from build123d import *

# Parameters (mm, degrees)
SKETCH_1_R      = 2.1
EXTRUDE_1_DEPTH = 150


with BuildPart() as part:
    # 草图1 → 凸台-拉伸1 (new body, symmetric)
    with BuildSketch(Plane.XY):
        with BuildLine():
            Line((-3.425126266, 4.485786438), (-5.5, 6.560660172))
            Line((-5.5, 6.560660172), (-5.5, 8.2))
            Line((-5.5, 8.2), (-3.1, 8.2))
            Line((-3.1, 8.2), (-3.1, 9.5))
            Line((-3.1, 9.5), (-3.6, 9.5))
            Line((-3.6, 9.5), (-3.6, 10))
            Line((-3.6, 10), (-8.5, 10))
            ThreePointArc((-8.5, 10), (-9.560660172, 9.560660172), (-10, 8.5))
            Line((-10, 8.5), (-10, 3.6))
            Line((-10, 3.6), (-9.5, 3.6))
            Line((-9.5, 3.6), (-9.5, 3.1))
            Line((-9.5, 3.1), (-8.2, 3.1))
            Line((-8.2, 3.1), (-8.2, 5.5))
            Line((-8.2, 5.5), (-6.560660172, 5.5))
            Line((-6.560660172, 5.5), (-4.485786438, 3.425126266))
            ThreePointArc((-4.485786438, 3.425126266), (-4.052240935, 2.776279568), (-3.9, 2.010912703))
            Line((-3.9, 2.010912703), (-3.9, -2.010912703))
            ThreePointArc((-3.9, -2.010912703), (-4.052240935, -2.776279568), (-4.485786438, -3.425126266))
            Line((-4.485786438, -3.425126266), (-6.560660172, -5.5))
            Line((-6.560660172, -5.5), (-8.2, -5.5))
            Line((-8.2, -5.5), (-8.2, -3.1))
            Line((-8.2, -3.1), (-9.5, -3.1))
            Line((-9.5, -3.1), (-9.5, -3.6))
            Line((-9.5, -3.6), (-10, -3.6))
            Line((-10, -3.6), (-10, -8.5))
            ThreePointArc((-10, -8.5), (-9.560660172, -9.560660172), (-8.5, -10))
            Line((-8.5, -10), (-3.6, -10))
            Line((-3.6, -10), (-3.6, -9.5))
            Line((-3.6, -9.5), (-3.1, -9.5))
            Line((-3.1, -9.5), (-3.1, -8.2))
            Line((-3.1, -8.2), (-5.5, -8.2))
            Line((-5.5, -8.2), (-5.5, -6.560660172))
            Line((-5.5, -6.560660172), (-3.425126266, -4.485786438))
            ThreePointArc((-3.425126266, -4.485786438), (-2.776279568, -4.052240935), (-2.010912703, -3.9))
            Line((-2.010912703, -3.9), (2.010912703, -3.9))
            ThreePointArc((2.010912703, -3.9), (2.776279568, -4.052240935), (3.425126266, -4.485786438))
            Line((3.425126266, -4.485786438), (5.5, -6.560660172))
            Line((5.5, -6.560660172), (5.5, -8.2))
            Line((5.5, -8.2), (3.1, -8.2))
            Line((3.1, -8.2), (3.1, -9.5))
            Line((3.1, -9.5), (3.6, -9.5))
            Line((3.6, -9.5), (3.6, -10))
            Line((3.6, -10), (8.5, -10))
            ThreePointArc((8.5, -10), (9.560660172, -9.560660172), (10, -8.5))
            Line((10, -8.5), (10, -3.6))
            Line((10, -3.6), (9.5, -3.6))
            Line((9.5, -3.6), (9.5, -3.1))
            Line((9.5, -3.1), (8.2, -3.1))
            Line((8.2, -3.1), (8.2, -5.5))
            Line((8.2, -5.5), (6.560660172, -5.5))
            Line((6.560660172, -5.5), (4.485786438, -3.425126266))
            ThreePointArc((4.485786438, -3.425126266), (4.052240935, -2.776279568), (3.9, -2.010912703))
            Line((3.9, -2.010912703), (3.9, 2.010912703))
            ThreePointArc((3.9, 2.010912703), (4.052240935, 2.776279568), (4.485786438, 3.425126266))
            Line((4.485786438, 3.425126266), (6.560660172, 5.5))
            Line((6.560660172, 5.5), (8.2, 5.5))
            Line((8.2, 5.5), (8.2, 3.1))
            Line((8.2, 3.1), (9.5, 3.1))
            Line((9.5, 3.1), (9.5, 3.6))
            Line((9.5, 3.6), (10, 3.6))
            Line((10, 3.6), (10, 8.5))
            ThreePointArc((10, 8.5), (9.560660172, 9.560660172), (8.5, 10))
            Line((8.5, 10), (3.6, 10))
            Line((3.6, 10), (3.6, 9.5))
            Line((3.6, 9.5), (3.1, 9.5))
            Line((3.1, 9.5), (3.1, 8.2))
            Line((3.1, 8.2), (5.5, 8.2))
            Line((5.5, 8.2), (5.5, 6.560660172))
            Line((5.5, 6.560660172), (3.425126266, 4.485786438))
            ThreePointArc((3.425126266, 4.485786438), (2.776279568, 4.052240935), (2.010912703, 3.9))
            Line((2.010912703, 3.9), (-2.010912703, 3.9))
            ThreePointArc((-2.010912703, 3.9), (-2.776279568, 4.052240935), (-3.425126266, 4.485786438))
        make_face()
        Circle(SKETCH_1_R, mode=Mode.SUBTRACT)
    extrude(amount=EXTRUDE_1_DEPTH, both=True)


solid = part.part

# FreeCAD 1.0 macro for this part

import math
import FreeCAD as App
import Part
import Sketcher

V = App.Vector

doc = App.newDocument("Part")
params = doc.addObject("Spreadsheet::Sheet", "Params")
for row, (alias, value) in enumerate([
    ("sketch1_radius", "2 mm"),
    ("sketch1_diameter", "4.2 mm"),
    ("sketch1_radius2", "1.5 mm"),
    ("sketch1_width", "2.4 mm"),
    ("sketch1_width2", "0.5 mm"),
    ("pad1_length", "300 mm"),
], start=1):
    params.set(f"A{row}", alias)
    params.set(f"B{row}", "=" + value)
    params.setAlias(f"B{row}", alias)

body = doc.addObject("PartDesign::Body", "Body")

# Sketch on XY plane
sketch1 = doc.addObject("Sketcher::SketchObject", "Sketch")
body.addObject(sketch1)
sketch1.AttachmentSupport = (doc.XY_Plane, [""])
sketch1.MapMode = "FlatFace"
sketch1.addGeometry([
    Part.LineSegment(V(-3.4, 4.5, 0), V(-5.5, 6.6, 0)),  # 0
    Part.LineSegment(V(-5.5, 6.6, 0), V(-5.5, 8.2, 0)),  # 1
    Part.LineSegment(V(-5.5, 8.2, 0), V(-3.1, 8.2, 0)),  # 2
    Part.LineSegment(V(-3.1, 8.2, 0), V(-3.1, 9.5, 0)),  # 3
    Part.LineSegment(V(-3.1, 9.5, 0), V(-3.6, 9.5, 0)),  # 4
    Part.LineSegment(V(-3.6, 9.5, 0), V(-3.6, 10, 0)),  # 5
    Part.LineSegment(V(-3.6, 10, 0), V(-8.5, 10, 0)),  # 6
    Part.ArcOfCircle(Part.Circle(V(-8.5, 8.5, 0), V(0, 0, 1), 1.5), math.radians(90), math.radians(180)),  # 7
    Part.LineSegment(V(-10, 8.5, 0), V(-10, 3.6, 0)),  # 8
    Part.LineSegment(V(-10, 3.6, 0), V(-9.5, 3.6, 0)),  # 9
    Part.LineSegment(V(-9.5, 3.6, 0), V(-9.5, 3.1, 0)),  # 10
    Part.LineSegment(V(-9.5, 3.1, 0), V(-8.2, 3.1, 0)),  # 11
    Part.LineSegment(V(-8.2, 3.1, 0), V(-8.2, 5.5, 0)),  # 12
    Part.LineSegment(V(-8.2, 5.5, 0), V(-6.6, 5.5, 0)),  # 13
    Part.LineSegment(V(-6.6, 5.5, 0), V(-4.5, 3.4, 0)),  # 14
    Part.ArcOfCircle(Part.Circle(V(-5.9, 2, 0), V(0, 0, 1), 2), math.radians(0), math.radians(45)),  # 15
    Part.LineSegment(V(-3.9, 2, 0), V(-3.9, -2, 0)),  # 16
    Part.ArcOfCircle(Part.Circle(V(-5.9, -2, 0), V(0, 0, 1), 2), math.radians(-45), math.radians(0)),  # 17
    Part.LineSegment(V(-4.5, -3.4, 0), V(-6.6, -5.5, 0)),  # 18
    Part.LineSegment(V(-6.6, -5.5, 0), V(-8.2, -5.5, 0)),  # 19
    Part.LineSegment(V(-8.2, -5.5, 0), V(-8.2, -3.1, 0)),  # 20
    Part.LineSegment(V(-8.2, -3.1, 0), V(-9.5, -3.1, 0)),  # 21
    Part.LineSegment(V(-9.5, -3.1, 0), V(-9.5, -3.6, 0)),  # 22
    Part.LineSegment(V(-9.5, -3.6, 0), V(-10, -3.6, 0)),  # 23
    Part.LineSegment(V(-10, -3.6, 0), V(-10, -8.5, 0)),  # 24
    Part.ArcOfCircle(Part.Circle(V(-8.5, -8.5, 0), V(0, 0, 1), 1.5), math.radians(180), math.radians(270)),  # 25
    Part.LineSegment(V(-8.5, -10, 0), V(-3.6, -10, 0)),  # 26
    Part.LineSegment(V(-3.6, -10, 0), V(-3.6, -9.5, 0)),  # 27
    Part.LineSegment(V(-3.6, -9.5, 0), V(-3.1, -9.5, 0)),  # 28
    Part.LineSegment(V(-3.1, -9.5, 0), V(-3.1, -8.2, 0)),  # 29
    Part.LineSegment(V(-3.1, -8.2, 0), V(-5.5, -8.2, 0)),  # 30
    Part.LineSegment(V(-5.5, -8.2, 0), V(-5.5, -6.6, 0)),  # 31
    Part.LineSegment(V(-5.5, -6.6, 0), V(-3.4, -4.5, 0)),  # 32
    Part.ArcOfCircle(Part.Circle(V(-2, -5.9, 0), V(0, 0, 1), 2), math.radians(90), math.radians(135)),  # 33
    Part.LineSegment(V(-2, -3.9, 0), V(2, -3.9, 0)),  # 34
    Part.ArcOfCircle(Part.Circle(V(2, -5.9, 0), V(0, 0, 1), 2), math.radians(45), math.radians(90)),  # 35
    Part.LineSegment(V(3.4, -4.5, 0), V(5.5, -6.6, 0)),  # 36
    Part.LineSegment(V(5.5, -6.6, 0), V(5.5, -8.2, 0)),  # 37
    Part.LineSegment(V(5.5, -8.2, 0), V(3.1, -8.2, 0)),  # 38
    Part.LineSegment(V(3.1, -8.2, 0), V(3.1, -9.5, 0)),  # 39
    Part.LineSegment(V(3.1, -9.5, 0), V(3.6, -9.5, 0)),  # 40
    Part.LineSegment(V(3.6, -9.5, 0), V(3.6, -10, 0)),  # 41
    Part.LineSegment(V(3.6, -10, 0), V(8.5, -10, 0)),  # 42
    Part.ArcOfCircle(Part.Circle(V(8.5, -8.5, 0), V(0, 0, 1), 1.5), math.radians(-90), math.radians(0)),  # 43
    Part.LineSegment(V(10, -8.5, 0), V(10, -3.6, 0)),  # 44
    Part.LineSegment(V(10, -3.6, 0), V(9.5, -3.6, 0)),  # 45
    Part.LineSegment(V(9.5, -3.6, 0), V(9.5, -3.1, 0)),  # 46
    Part.LineSegment(V(9.5, -3.1, 0), V(8.2, -3.1, 0)),  # 47
    Part.LineSegment(V(8.2, -3.1, 0), V(8.2, -5.5, 0)),  # 48
    Part.LineSegment(V(8.2, -5.5, 0), V(6.6, -5.5, 0)),  # 49
    Part.LineSegment(V(6.6, -5.5, 0), V(4.5, -3.4, 0)),  # 50
    Part.ArcOfCircle(Part.Circle(V(5.9, -2, 0), V(0, 0, 1), 2), math.radians(180), math.radians(225)),  # 51
    Part.LineSegment(V(3.9, -2, 0), V(3.9, 2, 0)),  # 52
    Part.ArcOfCircle(Part.Circle(V(5.9, 2, 0), V(0, 0, 1), 2), math.radians(135), math.radians(180)),  # 53
    Part.LineSegment(V(4.5, 3.4, 0), V(6.6, 5.5, 0)),  # 54
    Part.LineSegment(V(6.6, 5.5, 0), V(8.2, 5.5, 0)),  # 55
    Part.LineSegment(V(8.2, 5.5, 0), V(8.2, 3.1, 0)),  # 56
    Part.LineSegment(V(8.2, 3.1, 0), V(9.5, 3.1, 0)),  # 57
    Part.LineSegment(V(9.5, 3.1, 0), V(9.5, 3.6, 0)),  # 58
    Part.LineSegment(V(9.5, 3.6, 0), V(10, 3.6, 0)),  # 59
    Part.LineSegment(V(10, 3.6, 0), V(10, 8.5, 0)),  # 60
    Part.ArcOfCircle(Part.Circle(V(8.5, 8.5, 0), V(0, 0, 1), 1.5), math.radians(0), math.radians(90)),  # 61
    Part.LineSegment(V(8.5, 10, 0), V(3.6, 10, 0)),  # 62
    Part.LineSegment(V(3.6, 10, 0), V(3.6, 9.5, 0)),  # 63
    Part.LineSegment(V(3.6, 9.5, 0), V(3.1, 9.5, 0)),  # 64
    Part.LineSegment(V(3.1, 9.5, 0), V(3.1, 8.2, 0)),  # 65
    Part.LineSegment(V(3.1, 8.2, 0), V(5.5, 8.2, 0)),  # 66
    Part.LineSegment(V(5.5, 8.2, 0), V(5.5, 6.6, 0)),  # 67
    Part.LineSegment(V(5.5, 6.6, 0), V(3.4, 4.5, 0)),  # 68
    Part.ArcOfCircle(Part.Circle(V(2, 5.9, 0), V(0, 0, 1), 2), math.radians(-90), math.radians(-45)),  # 69
    Part.LineSegment(V(2, 3.9, 0), V(-2, 3.9, 0)),  # 70
    Part.ArcOfCircle(Part.Circle(V(-2, 5.9, 0), V(0, 0, 1), 2), math.radians(-135), math.radians(-90)),  # 71
    Part.Circle(V(0, 0, 0), V(0, 0, 1), 2.1),  # 72
], False)
sketch1.addConstraint([
    Sketcher.Constraint("Coincident", 0, 2, 1, 1),
    Sketcher.Constraint("Coincident", 1, 2, 2, 1),
    Sketcher.Constraint("Coincident", 2, 2, 3, 1),
    Sketcher.Constraint("Coincident", 3, 2, 4, 1),
    Sketcher.Constraint("Coincident", 4, 2, 5, 1),
    Sketcher.Constraint("Coincident", 5, 2, 6, 1),
    Sketcher.Constraint("Tangent", 6, 2, 7, 1),
    Sketcher.Constraint("Tangent", 7, 2, 8, 1),
    Sketcher.Constraint("Coincident", 8, 2, 9, 1),
    Sketcher.Constraint("Coincident", 9, 2, 10, 1),
    Sketcher.Constraint("Coincident", 10, 2, 11, 1),
    Sketcher.Constraint("Coincident", 11, 2, 12, 1),
    Sketcher.Constraint("Coincident", 12, 2, 13, 1),
    Sketcher.Constraint("Coincident", 13, 2, 14, 1),
    Sketcher.Constraint("Tangent", 14, 2, 15, 2),
    Sketcher.Constraint("Tangent", 15, 1, 16, 1),
    Sketcher.Constraint("Tangent", 16, 2, 17, 2),
    Sketcher.Constraint("Tangent", 17, 1, 18, 1),
    Sketcher.Constraint("Coincident", 18, 2, 19, 1),
    Sketcher.Constraint("Coincident", 19, 2, 20, 1),
    Sketcher.Constraint("Coincident", 20, 2, 21, 1),
    Sketcher.Constraint("Coincident", 21, 2, 22, 1),
    Sketcher.Constraint("Coincident", 22, 2, 23, 1),
    Sketcher.Constraint("Coincident", 23, 2, 24, 1),
    Sketcher.Constraint("Tangent", 24, 2, 25, 1),
    Sketcher.Constraint("Tangent", 25, 2, 26, 1),
    Sketcher.Constraint("Coincident", 26, 2, 27, 1),
    Sketcher.Constraint("Coincident", 27, 2, 28, 1),
    Sketcher.Constraint("Coincident", 28, 2, 29, 1),
    Sketcher.Constraint("Coincident", 29, 2, 30, 1),
    Sketcher.Constraint("Coincident", 30, 2, 31, 1),
    Sketcher.Constraint("Coincident", 31, 2, 32, 1),
    Sketcher.Constraint("Tangent", 32, 2, 33, 2),
    Sketcher.Constraint("Tangent", 33, 1, 34, 1),
    Sketcher.Constraint("Tangent", 34, 2, 35, 2),
    Sketcher.Constraint("Tangent", 35, 1, 36, 1),
    Sketcher.Constraint("Coincident", 36, 2, 37, 1),
    Sketcher.Constraint("Coincident", 37, 2, 38, 1),
    Sketcher.Constraint("Coincident", 38, 2, 39, 1),
    Sketcher.Constraint("Coincident", 39, 2, 40, 1),
    Sketcher.Constraint("Coincident", 40, 2, 41, 1),
    Sketcher.Constraint("Coincident", 41, 2, 42, 1),
    Sketcher.Constraint("Tangent", 42, 2, 43, 1),
    Sketcher.Constraint("Tangent", 43, 2, 44, 1),
    Sketcher.Constraint("Coincident", 44, 2, 45, 1),
    Sketcher.Constraint("Coincident", 45, 2, 46, 1),
    Sketcher.Constraint("Coincident", 46, 2, 47, 1),
    Sketcher.Constraint("Coincident", 47, 2, 48, 1),
    Sketcher.Constraint("Coincident", 48, 2, 49, 1),
    Sketcher.Constraint("Coincident", 49, 2, 50, 1),
    Sketcher.Constraint("Tangent", 50, 2, 51, 2),
    Sketcher.Constraint("Tangent", 51, 1, 52, 1),
    Sketcher.Constraint("Tangent", 52, 2, 53, 2),
    Sketcher.Constraint("Tangent", 53, 1, 54, 1),
    Sketcher.Constraint("Coincident", 54, 2, 55, 1),
    Sketcher.Constraint("Coincident", 55, 2, 56, 1),
    Sketcher.Constraint("Coincident", 56, 2, 57, 1),
    Sketcher.Constraint("Coincident", 57, 2, 58, 1),
    Sketcher.Constraint("Coincident", 58, 2, 59, 1),
    Sketcher.Constraint("Coincident", 59, 2, 60, 1),
    Sketcher.Constraint("Tangent", 60, 2, 61, 1),
    Sketcher.Constraint("Tangent", 61, 2, 62, 1),
    Sketcher.Constraint("Coincident", 62, 2, 63, 1),
    Sketcher.Constraint("Coincident", 63, 2, 64, 1),
    Sketcher.Constraint("Coincident", 64, 2, 65, 1),
    Sketcher.Constraint("Coincident", 65, 2, 66, 1),
    Sketcher.Constraint("Coincident", 66, 2, 67, 1),
    Sketcher.Constraint("Coincident", 67, 2, 68, 1),
    Sketcher.Constraint("Tangent", 68, 2, 69, 2),
    Sketcher.Constraint("Tangent", 69, 1, 70, 1),
    Sketcher.Constraint("Tangent", 70, 2, 71, 2),
    Sketcher.Constraint("Tangent", 71, 1, 0, 1),
    Sketcher.Constraint("Vertical", 1),
    Sketcher.Constraint("Horizontal", 2),
    Sketcher.Constraint("Vertical", 3),
    Sketcher.Constraint("Horizontal", 4),
    Sketcher.Constraint("Vertical", 5),
    Sketcher.Constraint("Horizontal", 6),
    Sketcher.Constraint("Vertical", 8),
    Sketcher.Constraint("Horizontal", 9),
    Sketcher.Constraint("Vertical", 10),
    Sketcher.Constraint("Horizontal", 11),
    Sketcher.Constraint("Vertical", 12),
    Sketcher.Constraint("Horizontal", 13),
    Sketcher.Constraint("Vertical", 16),
    Sketcher.Constraint("Horizontal", 19),
    Sketcher.Constraint("Vertical", 20),
    Sketcher.Constraint("Horizontal", 21),
    Sketcher.Constraint("Vertical", 22),
    Sketcher.Constraint("Horizontal", 23),
    Sketcher.Constraint("Vertical", 24),
    Sketcher.Constraint("Horizontal", 26),
    Sketcher.Constraint("Vertical", 27),
    Sketcher.Constraint("Horizontal", 28),
    Sketcher.Constraint("Vertical", 29),
    Sketcher.Constraint("Horizontal", 30),
    Sketcher.Constraint("Vertical", 31),
    Sketcher.Constraint("Horizontal", 34),
    Sketcher.Constraint("Vertical", 37),
    Sketcher.Constraint("Horizontal", 38),
    Sketcher.Constraint("Vertical", 39),
    Sketcher.Constraint("Horizontal", 40),
    Sketcher.Constraint("Vertical", 41),
    Sketcher.Constraint("Horizontal", 42),
    Sketcher.Constraint("Vertical", 44),
    Sketcher.Constraint("Horizontal", 45),
    Sketcher.Constraint("Vertical", 46),
    Sketcher.Constraint("Horizontal", 47),
    Sketcher.Constraint("Vertical", 48),
    Sketcher.Constraint("Horizontal", 49),
    Sketcher.Constraint("Vertical", 52),
    Sketcher.Constraint("Horizontal", 55),
    Sketcher.Constraint("Vertical", 56),
    Sketcher.Constraint("Horizontal", 57),
    Sketcher.Constraint("Vertical", 58),
    Sketcher.Constraint("Horizontal", 59),
    Sketcher.Constraint("Vertical", 60),
    Sketcher.Constraint("Horizontal", 62),
    Sketcher.Constraint("Vertical", 63),
    Sketcher.Constraint("Horizontal", 64),
    Sketcher.Constraint("Vertical", 65),
    Sketcher.Constraint("Horizontal", 66),
    Sketcher.Constraint("Vertical", 67),
    Sketcher.Constraint("Horizontal", 70),
    Sketcher.Constraint("Coincident", 72, 3, -1, 1),
    Sketcher.Constraint("Equal", 15, 17),
    Sketcher.Constraint("Equal", 7, 25),
    Sketcher.Constraint("Equal", 17, 33),
    Sketcher.Constraint("Equal", 33, 35),
    Sketcher.Constraint("Equal", 25, 43),
    Sketcher.Constraint("Equal", 35, 51),
    Sketcher.Constraint("Equal", 51, 53),
    Sketcher.Constraint("Equal", 43, 61),
    Sketcher.Constraint("Equal", 53, 69),
    Sketcher.Constraint("Equal", 69, 71),
    Sketcher.Constraint("Symmetric", 7, 3, 43, 3, -1, 1),
    Sketcher.Constraint("Symmetric", 15, 3, 51, 3, -1, 1),
    Sketcher.Constraint("Symmetric", 25, 3, 61, 3, -1, 1),
    Sketcher.Constraint("Symmetric", 33, 3, 69, 3, -1, 1),
    Sketcher.Constraint("Symmetric", 0, 2, 36, 2, -1, 1),
    Sketcher.Constraint("Symmetric", 2, 2, 38, 2, -1, 1),
    Sketcher.Constraint("Symmetric", 4, 2, 40, 2, -1, 1),
    Sketcher.Constraint("Symmetric", 9, 2, 45, 2, -1, 1),
    Sketcher.Constraint("Symmetric", 11, 2, 47, 2, -1, 1),
    Sketcher.Constraint("Symmetric", 13, 2, 49, 2, -1, 1),
    Sketcher.Constraint("Symmetric", 17, 1, 53, 1, -1, 1),
    Sketcher.Constraint("Symmetric", 19, 2, 55, 2, -1, 1),
    Sketcher.Constraint("Symmetric", 21, 2, 57, 2, -1, 1),
    Sketcher.Constraint("Symmetric", 27, 2, 63, 2, -1, 1),
    Sketcher.Constraint("Symmetric", 29, 2, 65, 2, -1, 1),
    Sketcher.Constraint("Symmetric", 31, 2, 67, 2, -1, 1),
    Sketcher.Constraint("Symmetric", 25, 3, 43, 3, -2),
    Sketcher.Constraint("Symmetric", 32, 2, 35, 1, -2),
    Sketcher.Constraint("Symmetric", 30, 2, 37, 2, -2),
    Sketcher.Constraint("Symmetric", 28, 2, 39, 2, -2),
    Sketcher.Constraint("Symmetric", 22, 2, 45, 2, -2),
    Sketcher.Constraint("Symmetric", 20, 2, 47, 2, -2),
    Sketcher.Constraint("Symmetric", 18, 2, 49, 2, -2),
    Sketcher.Constraint("Parallel", 0, 14),
    Sketcher.Constraint("Perpendicular", 14, 18),
    Sketcher.Constraint("Parallel", 18, 32),
    Sketcher.Constraint("Perpendicular", 32, 36),
    Sketcher.Constraint("Horizontal", 9, 2, 58, 2),
    Sketcher.Constraint("Vertical", 5, 2, 26, 2),
    Sketcher.Constraint("Equal", 4, 9),
    Sketcher.Constraint("Equal", 55, 1),
    Sketcher.Constraint("Equal", 57, 3),
    Sketcher.Constraint("Equal", 64, 5),
    Sketcher.Constraint("Equal", 62, 8),
    Sketcher.Constraint("Equal", 5, 10),
    Sketcher.Constraint("Equal", 66, 12),
    Sketcher.Constraint("Equal", 70, 16),
    Sketcher.Constraint("Equal", 0, 14),
    Sketcher.Constraint("Radius", 15, 2.0),
    Sketcher.Constraint("Diameter", 72, 4.2),
    Sketcher.Constraint("Radius", 7, 1.5),
    Sketcher.Constraint("DistanceX", 2, 1, 2, 2, 2.4),
    Sketcher.Constraint("DistanceX", 4, 2, 4, 1, 0.5),
    Sketcher.Constraint("DistanceX", 6, 2, 6, 1, 4.9),
    Sketcher.Constraint("DistanceX", 11, 1, 11, 2, 1.3),
    Sketcher.Constraint("DistanceY", -1, 1, 5, 2, 10.0),
    Sketcher.Constraint("DistanceX", 15, 3, -1, 1, 5.9),
    Sketcher.Constraint("DistanceX", 13, 1, 13, 2, 1.63934),
])
sketch1.setExpression("Constraints[173]", "Params.sketch1_radius")
sketch1.setExpression("Constraints[174]", "Params.sketch1_diameter")
sketch1.setExpression("Constraints[175]", "Params.sketch1_radius2")
sketch1.setExpression("Constraints[176]", "Params.sketch1_width")
sketch1.setExpression("Constraints[177]", "Params.sketch1_width2")
pad1 = doc.addObject("PartDesign::Pad", "Pad")
body.addObject(pad1)
pad1.Profile = sketch1
pad1.setExpression("Length", "Params.pad1_length")
pad1.Midplane = True

doc.recompute()
